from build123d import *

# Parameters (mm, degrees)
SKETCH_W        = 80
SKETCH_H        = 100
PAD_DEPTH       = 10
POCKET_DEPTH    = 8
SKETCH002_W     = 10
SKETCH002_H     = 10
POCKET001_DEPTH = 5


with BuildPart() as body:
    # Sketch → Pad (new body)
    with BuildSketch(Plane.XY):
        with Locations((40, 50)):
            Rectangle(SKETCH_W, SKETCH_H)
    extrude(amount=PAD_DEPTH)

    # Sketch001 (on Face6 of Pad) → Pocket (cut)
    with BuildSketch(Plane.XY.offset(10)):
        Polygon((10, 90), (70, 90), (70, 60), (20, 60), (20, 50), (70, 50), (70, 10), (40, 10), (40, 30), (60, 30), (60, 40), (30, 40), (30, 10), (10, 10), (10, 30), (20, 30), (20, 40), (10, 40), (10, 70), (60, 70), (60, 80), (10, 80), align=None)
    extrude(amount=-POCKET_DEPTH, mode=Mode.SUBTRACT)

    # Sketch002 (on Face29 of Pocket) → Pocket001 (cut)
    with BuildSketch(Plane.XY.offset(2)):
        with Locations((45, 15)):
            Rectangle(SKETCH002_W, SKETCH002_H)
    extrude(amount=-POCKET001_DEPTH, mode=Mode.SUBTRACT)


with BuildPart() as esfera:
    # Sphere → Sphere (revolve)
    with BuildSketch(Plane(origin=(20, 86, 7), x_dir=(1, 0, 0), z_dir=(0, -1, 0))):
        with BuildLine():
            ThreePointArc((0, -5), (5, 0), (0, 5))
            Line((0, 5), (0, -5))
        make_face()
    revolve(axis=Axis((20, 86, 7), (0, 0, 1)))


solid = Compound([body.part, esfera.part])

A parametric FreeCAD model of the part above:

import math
import FreeCAD as App
import Part
import Sketcher
from FreeCAD import Vector
Q = App.Units.Quantity


def add_polygon(sketch, points):
    """Adds a closed chain of lines whose ends are joined by coincident constraints."""
    first, n = sketch.GeometryCount, len(points)
    for a, b in zip(points, points[1:] + points[:1]):
        sketch.addGeometry(Part.LineSegment(App.Vector(*a, 0), App.Vector(*b, 0)), False)
    for i in range(n):
        sketch.addConstraint(Sketcher.Constraint("Coincident", first + i, 2, first + (i + 1) % n, 1))

doc = App.newDocument("Part")
body = doc.addObject("PartDesign::Body", "Body")

sketch1 = doc.addObject("Sketcher::SketchObject", "Sketch")
body.addObject(sketch1)
sketch1.AttachmentSupport = (doc.XY_Plane, [""])
sketch1.MapMode = "FlatFace"
add_polygon(sketch1, [(0, 100), (0, 0), (80, 0), (80, 100)])
sketch1.addConstraint([
    Sketcher.Constraint("Vertical", 0),
    Sketcher.Constraint("Horizontal", 1),
    Sketcher.Constraint("Vertical", 2),
    Sketcher.Constraint("Horizontal", 3),
    Sketcher.Constraint("Coincident", 0, 2, -1, 1),
    Sketcher.Constraint("DistanceX", 1, 1, 1, 2, Q("80 mm")),
    Sketcher.Constraint("DistanceY", 0, 2, 0, 1, Q("100 mm")),
])
pad1 = doc.addObject("PartDesign::Pad", "Pad")
body.addObject(pad1)
pad1.Profile = sketch1
pad1.Length = 10

sketch2 = doc.addObject("Sketcher::SketchObject", "Sketch001")
body.addObject(sketch2)
sketch2.AttachmentSupport = (doc.XY_Plane, [""])
sketch2.MapMode = "FlatFace"
sketch2.AttachmentOffset = App.Placement(Vector(0, 0, 10), App.Rotation())
add_polygon(sketch2, [(70, 90), (10, 90), (10, 80), (60, 80), (60, 70), (10, 70), (10, 40), (20, 40), (20, 30), (10, 30), (10, 10), (30, 10), (30, 40), (60, 40), (60, 30), (40, 30), (40, 10), (70, 10), (70, 50), (20, 50), (20, 60), (70, 60)])
sketch2.addConstraint([
    Sketcher.Constraint("Horizontal", 0),
    Sketcher.Constraint("Vertical", 1),
    Sketcher.Constraint("Horizontal", 2),
    Sketcher.Constraint("Vertical", 3),
    Sketcher.Constraint("Horizontal", 4),
    Sketcher.Constraint("Vertical", 5),
    Sketcher.Constraint("Horizontal", 6),
    Sketcher.Constraint("Vertical", 7),
    Sketcher.Constraint("Horizontal", 8),
    Sketcher.Constraint("Vertical", 9),
    Sketcher.Constraint("Horizontal", 10),
    Sketcher.Constraint("Vertical", 11),
    Sketcher.Constraint("Horizontal", 12),
    Sketcher.Constraint("Vertical", 13),
    Sketcher.Constraint("Horizontal", 14),
    Sketcher.Constraint("Vertical", 15),
    Sketcher.Constraint("Horizontal", 16),
    Sketcher.Constraint("Vertical", 17),
    Sketcher.Constraint("Horizontal", 18),
    Sketcher.Constraint("Vertical", 19),
    Sketcher.Constraint("Horizontal", 20),
    Sketcher.Constraint("Vertical", 21),
    Sketcher.Constraint("Horizontal", 6, 2, 11, 2),
    Sketcher.Constraint("Horizontal", 8, 2, 13, 2),
    Sketcher.Constraint("Horizontal", 10, 2, 15, 2),
    Sketcher.Constraint("Vertical", 1, 2, 4, 2),
    Sketcher.Constraint("Vertical", 5, 2, 8, 2),
    Sketcher.Constraint("Vertical", 3, 2, 12, 2),
    Sketcher.Constraint("Vertical", 7, 2, 18, 2),
    Sketcher.Constraint("Vertical", 17, 2, 20, 2),
    Sketcher.Constraint("Equal", 10, 14),
    Sketcher.Constraint("Equal", 12, 16),
    Sketcher.Constraint("Equal", 4, 18),
    Sketcher.Constraint("Equal", 8, 1),
    Sketcher.Constraint("Equal", 1, 3),
    Sketcher.Constraint("Equal", 16, 5),
    Sketcher.Constraint("Equal", 3, 7),
    Sketcher.Constraint("Equal", 14, 9),
    Sketcher.Constraint("Equal", 13, 19),
    Sketcher.Constraint("Equal", 11, 21),
    Sketcher.Constraint("DistanceX", 0, 2, 0, 1, Q("60 mm")),
    Sketcher.Constraint("DistanceX", 2, 1, 2, 2, Q("50 mm")),
    Sketcher.Constraint("DistanceX", -1, 1, 0, 2, Q("10 mm")),
    Sketcher.Constraint("DistanceY", -1, 1, 0, 2, Q("90 mm")),
])
pocket1 = doc.addObject("PartDesign::Pocket", "Pocket")
body.addObject(pocket1)
pocket1.Profile = sketch2
pocket1.Length = 8

sketch3 = doc.addObject("Sketcher::SketchObject", "Sketch002")
body.addObject(sketch3)
sketch3.AttachmentSupport = (doc.XY_Plane, [""])
sketch3.MapMode = "FlatFace"
sketch3.AttachmentOffset = App.Placement(Vector(0, 0, 2), App.Rotation())
add_polygon(sketch3, [(40, 20), (40, 10), (50, 10), (50, 20)])
sketch3.addConstraint([
    Sketcher.Constraint("Vertical", 0),
    Sketcher.Constraint("Horizontal", 1),
    Sketcher.Constraint("Vertical", 2),
    Sketcher.Constraint("Horizontal", 3),
    Sketcher.Constraint("Equal", 3, 0),
    Sketcher.Constraint("DistanceX", 1, 1, 1, 2, Q("10 mm")),
    Sketcher.Constraint("DistanceX", -1, 1, 0, 2, Q("40 mm")),
    Sketcher.Constraint("DistanceY", -1, 1, 0, 2, Q("10 mm")),
])
pocket2 = doc.addObject("PartDesign::Pocket", "Pocket001")
body.addObject(pocket2)
pocket2.Profile = sketch3
pocket2.Length = 5
body2 = doc.addObject("PartDesign::Body", "Body001")

sketch4 = doc.addObject("Sketcher::SketchObject", "Sketch003")
body2.addObject(sketch4)
sketch4.AttachmentSupport = (doc.getObject("XZ_Plane001"), [""])
sketch4.MapMode = "FlatFace"
sketch4.AttachmentOffset = App.Placement(Vector(0, 0, -86), App.Rotation())
sketch4.addGeometry([
    Part.ArcOfCircle(Part.Circle(Vector(20, 7, 0), Vector(0, 0, 1), 5), math.radians(-90), math.radians(90)),
    Part.LineSegment(Vector(20, 12, 0), Vector(20, 2, 0)),
], False)
sketch4.addGeometry(Part.LineSegment(Vector(20, 2, 0), Vector(20, 12, 0)), True)
sketch4.addConstraint([
    Sketcher.Constraint("Coincident", 0, 1, 1, 2),
    Sketcher.Constraint("Coincident", 1, 1, 0, 2),
    Sketcher.Constraint("Vertical", 1),
    Sketcher.Constraint("Vertical", 2),
    Sketcher.Constraint("Coincident", 2, 1, 0, 1),
    Sketcher.Constraint("Equal", 1, 2),
    Sketcher.Constraint("Radius", 0, Q("5 mm")),
    Sketcher.Constraint("DistanceX", -1, 1, 0, 3, Q("20 mm")),
    Sketcher.Constraint("DistanceY", -1, 1, 0, 3, Q("7 mm")),
    Sketcher.Constraint("DistanceX", -1, 1, 0, 1, Q("20 mm")),
])
revolution = doc.addObject("PartDesign::Revolution", "Revolution")
body2.addObject(revolution)
revolution.Profile = sketch4
revolution.ReferenceAxis = (sketch4, ["Axis0"])
revolution.Angle = 360

doc.recompute()
